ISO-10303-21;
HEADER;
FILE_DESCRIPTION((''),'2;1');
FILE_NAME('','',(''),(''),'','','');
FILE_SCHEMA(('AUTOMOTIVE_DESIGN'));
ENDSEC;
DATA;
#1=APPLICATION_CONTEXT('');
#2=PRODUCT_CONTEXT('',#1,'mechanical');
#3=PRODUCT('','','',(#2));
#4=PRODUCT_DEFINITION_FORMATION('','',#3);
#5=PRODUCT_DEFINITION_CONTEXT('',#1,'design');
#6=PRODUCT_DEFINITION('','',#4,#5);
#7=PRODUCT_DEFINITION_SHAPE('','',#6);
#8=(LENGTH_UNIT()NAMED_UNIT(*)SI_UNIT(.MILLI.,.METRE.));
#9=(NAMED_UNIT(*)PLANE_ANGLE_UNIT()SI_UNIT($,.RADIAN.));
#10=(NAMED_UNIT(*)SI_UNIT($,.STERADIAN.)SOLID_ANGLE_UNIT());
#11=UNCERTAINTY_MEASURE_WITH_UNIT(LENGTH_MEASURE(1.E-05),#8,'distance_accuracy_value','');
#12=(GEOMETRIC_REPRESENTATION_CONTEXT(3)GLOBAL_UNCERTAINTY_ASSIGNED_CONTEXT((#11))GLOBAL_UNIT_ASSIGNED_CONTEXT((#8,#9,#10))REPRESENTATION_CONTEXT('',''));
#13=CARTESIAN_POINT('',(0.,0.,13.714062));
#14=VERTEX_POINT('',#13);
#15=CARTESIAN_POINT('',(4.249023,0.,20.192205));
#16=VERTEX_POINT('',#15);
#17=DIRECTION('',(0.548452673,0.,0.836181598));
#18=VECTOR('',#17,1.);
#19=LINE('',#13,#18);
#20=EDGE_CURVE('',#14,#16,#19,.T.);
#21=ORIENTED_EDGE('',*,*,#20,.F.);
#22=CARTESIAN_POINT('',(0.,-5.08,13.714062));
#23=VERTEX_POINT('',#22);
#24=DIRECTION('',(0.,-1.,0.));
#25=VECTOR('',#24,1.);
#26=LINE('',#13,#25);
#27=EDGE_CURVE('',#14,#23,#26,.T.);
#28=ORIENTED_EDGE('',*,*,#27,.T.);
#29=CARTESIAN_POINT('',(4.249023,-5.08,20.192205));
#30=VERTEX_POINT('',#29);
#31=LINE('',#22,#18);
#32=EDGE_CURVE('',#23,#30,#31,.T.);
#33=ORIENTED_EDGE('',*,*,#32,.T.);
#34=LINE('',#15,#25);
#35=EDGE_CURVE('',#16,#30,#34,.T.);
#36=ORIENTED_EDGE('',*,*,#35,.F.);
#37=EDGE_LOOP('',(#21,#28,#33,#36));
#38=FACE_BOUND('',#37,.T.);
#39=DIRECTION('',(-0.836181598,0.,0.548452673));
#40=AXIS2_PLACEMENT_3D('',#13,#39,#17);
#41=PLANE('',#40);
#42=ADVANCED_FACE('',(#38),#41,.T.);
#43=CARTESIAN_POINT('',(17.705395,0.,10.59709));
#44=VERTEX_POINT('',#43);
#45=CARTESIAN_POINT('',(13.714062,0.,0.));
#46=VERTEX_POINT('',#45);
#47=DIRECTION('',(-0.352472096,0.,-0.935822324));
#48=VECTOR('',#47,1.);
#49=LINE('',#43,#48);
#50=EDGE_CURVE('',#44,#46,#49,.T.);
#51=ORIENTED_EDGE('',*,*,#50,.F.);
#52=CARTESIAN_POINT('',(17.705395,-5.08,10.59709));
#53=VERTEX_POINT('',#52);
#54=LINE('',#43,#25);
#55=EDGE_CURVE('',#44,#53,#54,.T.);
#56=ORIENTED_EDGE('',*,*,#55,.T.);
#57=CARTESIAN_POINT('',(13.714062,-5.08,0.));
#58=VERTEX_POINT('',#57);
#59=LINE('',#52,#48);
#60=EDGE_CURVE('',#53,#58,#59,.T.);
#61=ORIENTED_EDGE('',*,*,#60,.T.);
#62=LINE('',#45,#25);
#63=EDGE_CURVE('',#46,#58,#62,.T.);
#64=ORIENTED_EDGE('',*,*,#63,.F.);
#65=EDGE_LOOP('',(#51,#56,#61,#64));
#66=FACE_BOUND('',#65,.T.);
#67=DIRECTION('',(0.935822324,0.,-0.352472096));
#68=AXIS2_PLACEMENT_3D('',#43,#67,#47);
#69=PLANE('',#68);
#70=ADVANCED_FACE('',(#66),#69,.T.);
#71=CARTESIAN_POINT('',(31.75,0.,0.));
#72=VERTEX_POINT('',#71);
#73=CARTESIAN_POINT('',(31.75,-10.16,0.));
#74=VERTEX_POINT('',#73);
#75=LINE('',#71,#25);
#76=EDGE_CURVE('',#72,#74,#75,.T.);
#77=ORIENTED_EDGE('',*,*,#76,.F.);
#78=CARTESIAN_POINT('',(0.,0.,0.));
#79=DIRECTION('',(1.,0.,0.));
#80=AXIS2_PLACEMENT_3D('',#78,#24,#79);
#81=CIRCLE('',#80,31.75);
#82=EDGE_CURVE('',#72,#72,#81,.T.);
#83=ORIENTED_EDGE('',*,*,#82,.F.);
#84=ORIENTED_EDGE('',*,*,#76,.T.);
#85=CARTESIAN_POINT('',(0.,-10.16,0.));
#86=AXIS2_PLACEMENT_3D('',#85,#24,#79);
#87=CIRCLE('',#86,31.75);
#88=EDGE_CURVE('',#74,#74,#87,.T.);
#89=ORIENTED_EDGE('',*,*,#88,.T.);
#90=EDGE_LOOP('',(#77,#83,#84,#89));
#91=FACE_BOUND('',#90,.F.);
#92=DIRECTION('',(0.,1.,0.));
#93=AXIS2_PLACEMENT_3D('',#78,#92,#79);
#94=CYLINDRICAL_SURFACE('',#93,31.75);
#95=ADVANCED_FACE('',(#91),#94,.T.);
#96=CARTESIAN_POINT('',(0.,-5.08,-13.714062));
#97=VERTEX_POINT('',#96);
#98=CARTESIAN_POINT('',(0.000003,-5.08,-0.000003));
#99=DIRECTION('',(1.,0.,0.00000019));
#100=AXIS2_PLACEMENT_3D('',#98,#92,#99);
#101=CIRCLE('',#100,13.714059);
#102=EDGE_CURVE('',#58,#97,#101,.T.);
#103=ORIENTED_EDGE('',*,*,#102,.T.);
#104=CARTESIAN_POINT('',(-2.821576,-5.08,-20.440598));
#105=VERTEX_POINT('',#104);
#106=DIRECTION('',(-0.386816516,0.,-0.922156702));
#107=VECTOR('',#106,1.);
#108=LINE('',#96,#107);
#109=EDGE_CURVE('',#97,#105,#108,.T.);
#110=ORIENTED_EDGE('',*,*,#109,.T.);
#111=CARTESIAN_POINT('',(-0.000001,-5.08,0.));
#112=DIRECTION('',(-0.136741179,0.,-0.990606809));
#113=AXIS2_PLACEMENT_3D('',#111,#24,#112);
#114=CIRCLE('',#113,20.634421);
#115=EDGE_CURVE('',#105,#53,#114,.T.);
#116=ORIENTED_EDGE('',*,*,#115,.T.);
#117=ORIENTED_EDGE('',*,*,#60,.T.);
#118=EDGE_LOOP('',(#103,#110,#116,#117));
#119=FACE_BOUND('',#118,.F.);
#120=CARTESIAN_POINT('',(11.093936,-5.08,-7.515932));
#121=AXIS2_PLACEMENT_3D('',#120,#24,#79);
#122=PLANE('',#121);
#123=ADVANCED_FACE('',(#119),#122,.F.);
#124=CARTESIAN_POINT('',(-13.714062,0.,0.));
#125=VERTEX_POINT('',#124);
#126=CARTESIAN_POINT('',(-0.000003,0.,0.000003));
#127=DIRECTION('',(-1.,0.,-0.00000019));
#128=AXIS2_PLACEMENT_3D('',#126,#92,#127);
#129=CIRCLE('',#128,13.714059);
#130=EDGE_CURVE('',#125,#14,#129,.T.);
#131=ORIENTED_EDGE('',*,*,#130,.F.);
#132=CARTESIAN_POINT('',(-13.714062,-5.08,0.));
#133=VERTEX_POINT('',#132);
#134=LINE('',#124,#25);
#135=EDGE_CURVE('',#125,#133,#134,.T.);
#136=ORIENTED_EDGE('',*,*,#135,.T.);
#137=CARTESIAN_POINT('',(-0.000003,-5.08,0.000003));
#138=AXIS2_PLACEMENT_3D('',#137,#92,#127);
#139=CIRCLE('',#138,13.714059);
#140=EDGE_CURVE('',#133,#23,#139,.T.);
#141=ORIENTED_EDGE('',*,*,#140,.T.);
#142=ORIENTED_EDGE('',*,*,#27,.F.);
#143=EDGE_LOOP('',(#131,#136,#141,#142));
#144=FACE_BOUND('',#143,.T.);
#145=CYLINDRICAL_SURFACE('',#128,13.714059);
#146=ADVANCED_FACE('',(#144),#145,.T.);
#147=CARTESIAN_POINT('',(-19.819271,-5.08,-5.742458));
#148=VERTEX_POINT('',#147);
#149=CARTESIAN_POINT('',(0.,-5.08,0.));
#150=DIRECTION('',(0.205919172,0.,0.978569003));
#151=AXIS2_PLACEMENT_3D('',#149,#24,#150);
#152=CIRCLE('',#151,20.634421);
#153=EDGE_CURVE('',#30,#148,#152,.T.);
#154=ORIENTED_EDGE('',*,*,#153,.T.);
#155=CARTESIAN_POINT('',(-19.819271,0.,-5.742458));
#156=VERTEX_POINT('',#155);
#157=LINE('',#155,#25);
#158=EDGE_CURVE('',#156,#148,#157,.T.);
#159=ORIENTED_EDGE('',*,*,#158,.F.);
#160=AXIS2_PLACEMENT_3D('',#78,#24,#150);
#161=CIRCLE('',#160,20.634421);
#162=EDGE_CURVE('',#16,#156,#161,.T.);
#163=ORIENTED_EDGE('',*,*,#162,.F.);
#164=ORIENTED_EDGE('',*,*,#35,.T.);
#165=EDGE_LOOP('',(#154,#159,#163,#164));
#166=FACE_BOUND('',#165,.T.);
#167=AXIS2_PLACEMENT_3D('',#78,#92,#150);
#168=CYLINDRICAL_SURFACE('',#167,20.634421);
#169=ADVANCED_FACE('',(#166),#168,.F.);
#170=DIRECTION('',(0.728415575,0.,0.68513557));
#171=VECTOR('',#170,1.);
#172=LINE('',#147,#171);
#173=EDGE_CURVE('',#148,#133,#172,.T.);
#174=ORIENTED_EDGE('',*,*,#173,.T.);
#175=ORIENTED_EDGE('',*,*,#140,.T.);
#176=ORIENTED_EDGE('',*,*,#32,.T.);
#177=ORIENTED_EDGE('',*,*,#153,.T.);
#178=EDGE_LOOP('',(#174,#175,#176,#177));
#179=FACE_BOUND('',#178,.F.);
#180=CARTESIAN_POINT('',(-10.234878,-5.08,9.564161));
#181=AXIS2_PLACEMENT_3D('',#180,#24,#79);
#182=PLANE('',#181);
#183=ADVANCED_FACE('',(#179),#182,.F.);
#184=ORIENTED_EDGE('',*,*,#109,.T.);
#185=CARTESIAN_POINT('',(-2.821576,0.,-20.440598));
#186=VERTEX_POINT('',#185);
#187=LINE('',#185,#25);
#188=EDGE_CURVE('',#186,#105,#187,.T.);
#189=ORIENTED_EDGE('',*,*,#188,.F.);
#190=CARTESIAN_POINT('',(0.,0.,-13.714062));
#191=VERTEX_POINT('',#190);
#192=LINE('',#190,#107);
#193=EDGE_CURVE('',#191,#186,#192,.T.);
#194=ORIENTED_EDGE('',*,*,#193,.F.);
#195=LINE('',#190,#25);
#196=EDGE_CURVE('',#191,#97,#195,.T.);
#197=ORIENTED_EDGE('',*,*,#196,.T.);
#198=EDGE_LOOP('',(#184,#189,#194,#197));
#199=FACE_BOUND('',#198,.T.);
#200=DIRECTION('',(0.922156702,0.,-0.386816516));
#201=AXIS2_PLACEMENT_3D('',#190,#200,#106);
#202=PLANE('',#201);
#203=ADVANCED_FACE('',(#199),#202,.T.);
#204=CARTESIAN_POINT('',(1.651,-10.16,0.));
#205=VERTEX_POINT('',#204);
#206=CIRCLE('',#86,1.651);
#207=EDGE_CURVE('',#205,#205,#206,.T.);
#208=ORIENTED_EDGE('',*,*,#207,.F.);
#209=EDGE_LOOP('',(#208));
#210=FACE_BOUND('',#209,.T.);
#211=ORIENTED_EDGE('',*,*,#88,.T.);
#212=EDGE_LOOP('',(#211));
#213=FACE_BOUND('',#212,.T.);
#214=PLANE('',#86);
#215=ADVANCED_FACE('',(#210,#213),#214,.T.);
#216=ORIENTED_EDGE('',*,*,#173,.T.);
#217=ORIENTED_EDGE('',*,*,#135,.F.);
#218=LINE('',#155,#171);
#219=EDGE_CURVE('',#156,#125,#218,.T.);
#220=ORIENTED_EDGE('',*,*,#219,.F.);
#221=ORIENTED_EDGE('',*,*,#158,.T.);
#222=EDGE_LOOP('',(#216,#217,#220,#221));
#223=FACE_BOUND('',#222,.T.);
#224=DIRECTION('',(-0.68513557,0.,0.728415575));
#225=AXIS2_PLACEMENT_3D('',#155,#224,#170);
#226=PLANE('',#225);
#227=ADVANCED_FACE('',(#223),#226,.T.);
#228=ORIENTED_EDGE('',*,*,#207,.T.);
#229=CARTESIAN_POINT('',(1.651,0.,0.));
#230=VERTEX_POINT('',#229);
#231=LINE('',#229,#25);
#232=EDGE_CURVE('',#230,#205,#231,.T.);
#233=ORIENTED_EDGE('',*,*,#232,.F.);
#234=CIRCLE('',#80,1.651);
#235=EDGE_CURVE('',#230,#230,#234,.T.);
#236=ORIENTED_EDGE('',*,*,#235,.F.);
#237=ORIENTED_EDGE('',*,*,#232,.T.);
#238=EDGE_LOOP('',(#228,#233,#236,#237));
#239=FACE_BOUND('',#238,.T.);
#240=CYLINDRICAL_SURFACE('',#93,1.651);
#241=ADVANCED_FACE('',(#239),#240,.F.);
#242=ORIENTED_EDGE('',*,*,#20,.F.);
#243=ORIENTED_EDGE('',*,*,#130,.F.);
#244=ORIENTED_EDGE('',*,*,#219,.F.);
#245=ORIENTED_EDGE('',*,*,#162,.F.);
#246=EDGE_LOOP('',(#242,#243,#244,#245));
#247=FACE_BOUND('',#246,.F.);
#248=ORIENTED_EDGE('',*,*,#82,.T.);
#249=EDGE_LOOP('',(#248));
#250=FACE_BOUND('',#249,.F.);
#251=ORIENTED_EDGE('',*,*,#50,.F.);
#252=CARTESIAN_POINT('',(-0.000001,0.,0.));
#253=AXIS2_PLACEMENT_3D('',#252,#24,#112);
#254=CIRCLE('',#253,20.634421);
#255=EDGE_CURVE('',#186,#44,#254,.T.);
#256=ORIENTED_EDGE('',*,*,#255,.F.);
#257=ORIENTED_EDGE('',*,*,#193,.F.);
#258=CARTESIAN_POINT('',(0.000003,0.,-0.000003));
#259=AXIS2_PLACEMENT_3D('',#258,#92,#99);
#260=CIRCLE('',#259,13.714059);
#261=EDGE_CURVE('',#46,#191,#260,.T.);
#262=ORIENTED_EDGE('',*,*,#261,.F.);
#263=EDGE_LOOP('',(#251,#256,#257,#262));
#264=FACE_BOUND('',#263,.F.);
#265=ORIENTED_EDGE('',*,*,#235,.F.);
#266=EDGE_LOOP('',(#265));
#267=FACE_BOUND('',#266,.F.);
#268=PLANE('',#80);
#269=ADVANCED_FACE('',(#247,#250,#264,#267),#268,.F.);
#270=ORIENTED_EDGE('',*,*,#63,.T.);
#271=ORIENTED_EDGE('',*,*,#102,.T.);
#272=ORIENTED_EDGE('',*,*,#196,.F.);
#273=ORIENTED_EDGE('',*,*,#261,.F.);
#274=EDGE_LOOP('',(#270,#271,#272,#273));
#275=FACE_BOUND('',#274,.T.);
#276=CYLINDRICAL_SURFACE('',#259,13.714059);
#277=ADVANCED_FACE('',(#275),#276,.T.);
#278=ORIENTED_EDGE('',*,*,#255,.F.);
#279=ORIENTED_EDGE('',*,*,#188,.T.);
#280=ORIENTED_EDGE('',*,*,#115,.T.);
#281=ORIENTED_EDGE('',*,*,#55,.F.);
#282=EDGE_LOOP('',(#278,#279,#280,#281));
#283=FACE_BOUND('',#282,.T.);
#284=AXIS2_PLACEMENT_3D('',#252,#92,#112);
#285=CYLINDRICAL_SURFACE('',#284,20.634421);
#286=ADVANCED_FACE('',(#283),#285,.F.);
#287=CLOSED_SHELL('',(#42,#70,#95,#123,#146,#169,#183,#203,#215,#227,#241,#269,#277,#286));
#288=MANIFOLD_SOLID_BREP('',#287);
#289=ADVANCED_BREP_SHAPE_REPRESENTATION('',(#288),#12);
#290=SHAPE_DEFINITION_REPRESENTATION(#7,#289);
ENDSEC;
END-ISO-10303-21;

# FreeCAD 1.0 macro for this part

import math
import FreeCAD as App
import Part
import Sketcher
from FreeCAD import Vector
Q = App.Units.Quantity

doc = App.newDocument("Part")
body = doc.addObject("PartDesign::Body", "Body")

# Sketch on XZ plane
sketch1 = body.newObject("Sketcher::SketchObject", "Sketch")
sketch1.AttachmentSupport = (doc.getObject("XZ_Plane"), [""])
sketch1.MapMode = "FlatFace"
sketch1.addGeometry([
    Part.Circle(Vector(0, 0, 0), Vector(0, 0, 1), 31.8),
    Part.Circle(Vector(0, 0, 0), Vector(0, 0, 1), 1.7),
], False)
sketch1.addConstraint([
    Sketcher.Constraint("Coincident", 0, 3, -1, 1),
    Sketcher.Constraint("Coincident", 1, 3, -1, 1),
    Sketcher.Constraint("Diameter", 0, Q("2.5 in")),
    Sketcher.Constraint("Diameter", 1, Q("0.13 in")),
])
pad1 = body.newObject("PartDesign::Pad", "Pad")
pad1.Profile = sketch1
pad1.Length = Q("0.4 in")

# Sketch on XZ plane
sketch2 = body.newObject("Sketcher::SketchObject", "Sketch001")
sketch2.AttachmentSupport = (doc.getObject("XZ_Plane"), [""])
sketch2.MapMode = "FlatFace"
sketch2.addGeometry([
    Part.LineSegment(Vector(0, 14, 0), Vector(4, 20, 0)),  # 0
    Part.ArcOfCircle(Part.Circle(Vector(0, 0, 0), Vector(0, 0, 1), 21), math.radians(78), math.radians(196)),  # 1
    Part.LineSegment(Vector(-20, -6, 0), Vector(-14, 0, 0)),  # 2
    Part.ArcOfCircle(Part.Circle(Vector(0, 0, 0), Vector(0, 0, 1), 14), math.radians(90), math.radians(180)),  # 3
    Part.ArcOfCircle(Part.Circle(Vector(0, 0, 0), Vector(0, 0, 1), 14), math.radians(-90), math.radians(0)),  # 4
    Part.LineSegment(Vector(0, -14, 0), Vector(-3, -20, 0)),  # 5
    Part.ArcOfCircle(Part.Circle(Vector(0, 0, 0), Vector(0, 0, 1), 21), math.radians(-98), math.radians(31)),  # 6
    Part.LineSegment(Vector(18, 11, 0), Vector(14, 0, 0)),  # 7
], False)
sketch2.addConstraint([
    Sketcher.Constraint("Coincident", 0, 2, 1, 1),
    Sketcher.Constraint("Coincident", 1, 2, 2, 1),
    Sketcher.Constraint("Coincident", 2, 2, 3, 2),
    Sketcher.Constraint("Coincident", 3, 1, 0, 1),
    Sketcher.Constraint("Coincident", 4, 1, 5, 1),
    Sketcher.Constraint("Coincident", 5, 2, 6, 1),
    Sketcher.Constraint("Coincident", 6, 2, 7, 1),
    Sketcher.Constraint("Coincident", 7, 2, 4, 2),
    Sketcher.Constraint("Coincident", 1, 3, -1, 1),
    Sketcher.Constraint("Coincident", 3, 3, -1, 1),
    Sketcher.Constraint("Coincident", 4, 3, -1, 1),
    Sketcher.Constraint("Coincident", 6, 3, -1, 1),
    Sketcher.Constraint("Equal", 3, 4),
    Sketcher.Constraint("Equal", 1, 6),
    Sketcher.Constraint("PointOnObject", 2, 2, -1),
    Sketcher.Constraint("PointOnObject", 3, 1, -2),
    Sketcher.Constraint("PointOnObject", 4, 1, -2),
    Sketcher.Constraint("PointOnObject", 7, 2, -1),
    Sketcher.Constraint("Radius", 1, 20.634421),
    Sketcher.Constraint("Radius", 3, 13.714059),
    Sketcher.Constraint("DistanceY", 5, 2, -1, 1, 20.440598),
    Sketcher.Constraint("Distance", 0, 7.747292),
    Sketcher.Constraint("Distance", 2, 8.381492),
    Sketcher.Constraint("DistanceY", -1, 1, 6, 2, 10.59709),
])
pocket1 = body.newObject("PartDesign::Pocket", "Pocket")
pocket1.Profile = sketch2
pocket1.Length = Q("0.2 in")
pocket1.Reversed = True

doc.recompute()
